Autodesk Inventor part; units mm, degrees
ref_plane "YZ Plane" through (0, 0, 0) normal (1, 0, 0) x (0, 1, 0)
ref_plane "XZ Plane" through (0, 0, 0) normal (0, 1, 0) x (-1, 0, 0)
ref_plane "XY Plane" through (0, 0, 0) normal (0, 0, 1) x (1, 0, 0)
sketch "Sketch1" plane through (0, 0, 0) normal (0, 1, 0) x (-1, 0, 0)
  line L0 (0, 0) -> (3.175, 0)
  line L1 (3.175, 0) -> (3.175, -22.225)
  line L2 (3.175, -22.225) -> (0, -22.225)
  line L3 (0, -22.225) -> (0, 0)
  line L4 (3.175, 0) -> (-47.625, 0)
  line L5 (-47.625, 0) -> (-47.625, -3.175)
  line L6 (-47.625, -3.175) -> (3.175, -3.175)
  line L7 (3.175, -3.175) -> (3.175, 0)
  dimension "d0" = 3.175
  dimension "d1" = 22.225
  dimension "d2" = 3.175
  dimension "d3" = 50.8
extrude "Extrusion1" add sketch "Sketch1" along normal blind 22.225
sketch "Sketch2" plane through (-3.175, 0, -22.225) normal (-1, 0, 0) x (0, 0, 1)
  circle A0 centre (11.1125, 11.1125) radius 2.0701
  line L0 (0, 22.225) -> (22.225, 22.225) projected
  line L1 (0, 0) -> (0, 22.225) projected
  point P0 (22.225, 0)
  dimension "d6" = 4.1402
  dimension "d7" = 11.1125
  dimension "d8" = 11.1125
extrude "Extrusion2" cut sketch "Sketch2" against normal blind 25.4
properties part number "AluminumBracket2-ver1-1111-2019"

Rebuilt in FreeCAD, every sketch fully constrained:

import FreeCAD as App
import Part
import Sketcher
from FreeCAD import Vector
Q = App.Units.Quantity

doc = App.newDocument("Part")
params = doc.addObject("Spreadsheet::Sheet", "Params")
for row, (alias, value) in enumerate([
    ("sketch1_width", "2 in"),
    ("sketch1_width2", "0.125 in"),
    ("sketch1_height", "0.875 in"),
    ("pad1_length", "0.875 in"),
    ("sketch2_diameter", "0.163 in"),
    ("pocket1_length", "1 in"),
], start=1):
    params.set(f"A{row}", alias)
    params.set(f"B{row}", "=" + value)
    params.setAlias(f"B{row}", alias)

body = doc.addObject("PartDesign::Body", "Body")

# Sketch on XZ plane
sketch1 = body.newObject("Sketcher::SketchObject", "Sketch")
sketch1.AttachmentSupport = (doc.getObject("XZ_Plane"), [""])
sketch1.MapMode = "FlatFace"
sketch1.addGeometry(Part.LineSegment(Vector(-3.2, 0, 0), Vector(47.6, 0, 0)), False)
sketch1.addGeometry(Part.LineSegment(Vector(47.6, 0, 0), Vector(47.6, -3.2, 0)), False)
sketch1.addGeometry(Part.LineSegment(Vector(47.6, -3.2, 0), Vector(0, -3.2, 0)), False)
sketch1.addGeometry(Part.LineSegment(Vector(0, -3.2, 0), Vector(0, -22.2, 0)), False)
sketch1.addGeometry(Part.LineSegment(Vector(0, -22.2, 0), Vector(-3.2, -22.2, 0)), False)
sketch1.addGeometry(Part.LineSegment(Vector(-3.2, -22.2, 0), Vector(-3.2, 0, 0)), False)
sketch1.addConstraint(Sketcher.Constraint("Coincident", 0, 2, 1, 1))
sketch1.addConstraint(Sketcher.Constraint("Coincident", 1, 2, 2, 1))
sketch1.addConstraint(Sketcher.Constraint("Coincident", 2, 2, 3, 1))
sketch1.addConstraint(Sketcher.Constraint("Coincident", 3, 2, 4, 1))
sketch1.addConstraint(Sketcher.Constraint("Coincident", 4, 2, 5, 1))
sketch1.addConstraint(Sketcher.Constraint("Coincident", 5, 2, 0, 1))
sketch1.addConstraint(Sketcher.Constraint("Horizontal", 0))
sketch1.addConstraint(Sketcher.Constraint("Vertical", 1))
sketch1.addConstraint(Sketcher.Constraint("Horizontal", 2))
sketch1.addConstraint(Sketcher.Constraint("Vertical", 3))
sketch1.addConstraint(Sketcher.Constraint("Horizontal", 4))
sketch1.addConstraint(Sketcher.Constraint("Vertical", 5))
sketch1.addConstraint(Sketcher.Constraint("PointOnObject", 0, 2, -1))
sketch1.addConstraint(Sketcher.Constraint("PointOnObject", 2, 2, -2))
sketch1.addConstraint(Sketcher.Constraint("Equal", 4, 1))
sketch1.addConstraint(Sketcher.Constraint("DistanceX", 0, 1, 0, 2, Q("2 in")))
sketch1.addConstraint(Sketcher.Constraint("DistanceX", 4, 2, 4, 1, Q("0.125 in")))
sketch1.addConstraint(Sketcher.Constraint("DistanceY", 5, 1, 5, 2, Q("0.875 in")))
sketch1.setExpression("Constraints[15]", "Params.sketch1_width")
sketch1.setExpression("Constraints[16]", "Params.sketch1_width2")
sketch1.setExpression("Constraints[17]", "Params.sketch1_height")
pad1 = body.newObject("PartDesign::Pad", "Pad")
pad1.Profile = sketch1
pad1.setExpression("Length", "Params.pad1_length")
pad1.Reversed = True

# Sketch on YZ plane
sketch2 = body.newObject("Sketcher::SketchObject", "Sketch001")
sketch2.AttachmentSupport = (doc.getObject("YZ_Plane"), [""])
sketch2.MapMode = "FlatFace"
sketch2.AttachmentOffset = App.Placement(Vector(0, 0, -0.125 * 25.4), App.Rotation())
sketch2.addGeometry(Part.Circle(Vector(11.1, -11.1, 0), Vector(0, 0, 1), 2.1), False)
sketch2.addConstraint(Sketcher.Constraint("Diameter", 0, Q("0.163 in")))
sketch2.addConstraint(Sketcher.Constraint("DistanceX", -1, 1, 0, 3, Q("0.4375 in")))
sketch2.addConstraint(Sketcher.Constraint("DistanceY", 0, 3, -1, 1, Q("0.4375 in")))
sketch2.setExpression("Constraints[0]", "Params.sketch2_diameter")
pocket1 = body.newObject("PartDesign::Pocket", "Pocket")
pocket1.Profile = sketch2
pocket1.setExpression("Length", "Params.pocket1_length")
pocket1.Reversed = True

doc.recompute()
